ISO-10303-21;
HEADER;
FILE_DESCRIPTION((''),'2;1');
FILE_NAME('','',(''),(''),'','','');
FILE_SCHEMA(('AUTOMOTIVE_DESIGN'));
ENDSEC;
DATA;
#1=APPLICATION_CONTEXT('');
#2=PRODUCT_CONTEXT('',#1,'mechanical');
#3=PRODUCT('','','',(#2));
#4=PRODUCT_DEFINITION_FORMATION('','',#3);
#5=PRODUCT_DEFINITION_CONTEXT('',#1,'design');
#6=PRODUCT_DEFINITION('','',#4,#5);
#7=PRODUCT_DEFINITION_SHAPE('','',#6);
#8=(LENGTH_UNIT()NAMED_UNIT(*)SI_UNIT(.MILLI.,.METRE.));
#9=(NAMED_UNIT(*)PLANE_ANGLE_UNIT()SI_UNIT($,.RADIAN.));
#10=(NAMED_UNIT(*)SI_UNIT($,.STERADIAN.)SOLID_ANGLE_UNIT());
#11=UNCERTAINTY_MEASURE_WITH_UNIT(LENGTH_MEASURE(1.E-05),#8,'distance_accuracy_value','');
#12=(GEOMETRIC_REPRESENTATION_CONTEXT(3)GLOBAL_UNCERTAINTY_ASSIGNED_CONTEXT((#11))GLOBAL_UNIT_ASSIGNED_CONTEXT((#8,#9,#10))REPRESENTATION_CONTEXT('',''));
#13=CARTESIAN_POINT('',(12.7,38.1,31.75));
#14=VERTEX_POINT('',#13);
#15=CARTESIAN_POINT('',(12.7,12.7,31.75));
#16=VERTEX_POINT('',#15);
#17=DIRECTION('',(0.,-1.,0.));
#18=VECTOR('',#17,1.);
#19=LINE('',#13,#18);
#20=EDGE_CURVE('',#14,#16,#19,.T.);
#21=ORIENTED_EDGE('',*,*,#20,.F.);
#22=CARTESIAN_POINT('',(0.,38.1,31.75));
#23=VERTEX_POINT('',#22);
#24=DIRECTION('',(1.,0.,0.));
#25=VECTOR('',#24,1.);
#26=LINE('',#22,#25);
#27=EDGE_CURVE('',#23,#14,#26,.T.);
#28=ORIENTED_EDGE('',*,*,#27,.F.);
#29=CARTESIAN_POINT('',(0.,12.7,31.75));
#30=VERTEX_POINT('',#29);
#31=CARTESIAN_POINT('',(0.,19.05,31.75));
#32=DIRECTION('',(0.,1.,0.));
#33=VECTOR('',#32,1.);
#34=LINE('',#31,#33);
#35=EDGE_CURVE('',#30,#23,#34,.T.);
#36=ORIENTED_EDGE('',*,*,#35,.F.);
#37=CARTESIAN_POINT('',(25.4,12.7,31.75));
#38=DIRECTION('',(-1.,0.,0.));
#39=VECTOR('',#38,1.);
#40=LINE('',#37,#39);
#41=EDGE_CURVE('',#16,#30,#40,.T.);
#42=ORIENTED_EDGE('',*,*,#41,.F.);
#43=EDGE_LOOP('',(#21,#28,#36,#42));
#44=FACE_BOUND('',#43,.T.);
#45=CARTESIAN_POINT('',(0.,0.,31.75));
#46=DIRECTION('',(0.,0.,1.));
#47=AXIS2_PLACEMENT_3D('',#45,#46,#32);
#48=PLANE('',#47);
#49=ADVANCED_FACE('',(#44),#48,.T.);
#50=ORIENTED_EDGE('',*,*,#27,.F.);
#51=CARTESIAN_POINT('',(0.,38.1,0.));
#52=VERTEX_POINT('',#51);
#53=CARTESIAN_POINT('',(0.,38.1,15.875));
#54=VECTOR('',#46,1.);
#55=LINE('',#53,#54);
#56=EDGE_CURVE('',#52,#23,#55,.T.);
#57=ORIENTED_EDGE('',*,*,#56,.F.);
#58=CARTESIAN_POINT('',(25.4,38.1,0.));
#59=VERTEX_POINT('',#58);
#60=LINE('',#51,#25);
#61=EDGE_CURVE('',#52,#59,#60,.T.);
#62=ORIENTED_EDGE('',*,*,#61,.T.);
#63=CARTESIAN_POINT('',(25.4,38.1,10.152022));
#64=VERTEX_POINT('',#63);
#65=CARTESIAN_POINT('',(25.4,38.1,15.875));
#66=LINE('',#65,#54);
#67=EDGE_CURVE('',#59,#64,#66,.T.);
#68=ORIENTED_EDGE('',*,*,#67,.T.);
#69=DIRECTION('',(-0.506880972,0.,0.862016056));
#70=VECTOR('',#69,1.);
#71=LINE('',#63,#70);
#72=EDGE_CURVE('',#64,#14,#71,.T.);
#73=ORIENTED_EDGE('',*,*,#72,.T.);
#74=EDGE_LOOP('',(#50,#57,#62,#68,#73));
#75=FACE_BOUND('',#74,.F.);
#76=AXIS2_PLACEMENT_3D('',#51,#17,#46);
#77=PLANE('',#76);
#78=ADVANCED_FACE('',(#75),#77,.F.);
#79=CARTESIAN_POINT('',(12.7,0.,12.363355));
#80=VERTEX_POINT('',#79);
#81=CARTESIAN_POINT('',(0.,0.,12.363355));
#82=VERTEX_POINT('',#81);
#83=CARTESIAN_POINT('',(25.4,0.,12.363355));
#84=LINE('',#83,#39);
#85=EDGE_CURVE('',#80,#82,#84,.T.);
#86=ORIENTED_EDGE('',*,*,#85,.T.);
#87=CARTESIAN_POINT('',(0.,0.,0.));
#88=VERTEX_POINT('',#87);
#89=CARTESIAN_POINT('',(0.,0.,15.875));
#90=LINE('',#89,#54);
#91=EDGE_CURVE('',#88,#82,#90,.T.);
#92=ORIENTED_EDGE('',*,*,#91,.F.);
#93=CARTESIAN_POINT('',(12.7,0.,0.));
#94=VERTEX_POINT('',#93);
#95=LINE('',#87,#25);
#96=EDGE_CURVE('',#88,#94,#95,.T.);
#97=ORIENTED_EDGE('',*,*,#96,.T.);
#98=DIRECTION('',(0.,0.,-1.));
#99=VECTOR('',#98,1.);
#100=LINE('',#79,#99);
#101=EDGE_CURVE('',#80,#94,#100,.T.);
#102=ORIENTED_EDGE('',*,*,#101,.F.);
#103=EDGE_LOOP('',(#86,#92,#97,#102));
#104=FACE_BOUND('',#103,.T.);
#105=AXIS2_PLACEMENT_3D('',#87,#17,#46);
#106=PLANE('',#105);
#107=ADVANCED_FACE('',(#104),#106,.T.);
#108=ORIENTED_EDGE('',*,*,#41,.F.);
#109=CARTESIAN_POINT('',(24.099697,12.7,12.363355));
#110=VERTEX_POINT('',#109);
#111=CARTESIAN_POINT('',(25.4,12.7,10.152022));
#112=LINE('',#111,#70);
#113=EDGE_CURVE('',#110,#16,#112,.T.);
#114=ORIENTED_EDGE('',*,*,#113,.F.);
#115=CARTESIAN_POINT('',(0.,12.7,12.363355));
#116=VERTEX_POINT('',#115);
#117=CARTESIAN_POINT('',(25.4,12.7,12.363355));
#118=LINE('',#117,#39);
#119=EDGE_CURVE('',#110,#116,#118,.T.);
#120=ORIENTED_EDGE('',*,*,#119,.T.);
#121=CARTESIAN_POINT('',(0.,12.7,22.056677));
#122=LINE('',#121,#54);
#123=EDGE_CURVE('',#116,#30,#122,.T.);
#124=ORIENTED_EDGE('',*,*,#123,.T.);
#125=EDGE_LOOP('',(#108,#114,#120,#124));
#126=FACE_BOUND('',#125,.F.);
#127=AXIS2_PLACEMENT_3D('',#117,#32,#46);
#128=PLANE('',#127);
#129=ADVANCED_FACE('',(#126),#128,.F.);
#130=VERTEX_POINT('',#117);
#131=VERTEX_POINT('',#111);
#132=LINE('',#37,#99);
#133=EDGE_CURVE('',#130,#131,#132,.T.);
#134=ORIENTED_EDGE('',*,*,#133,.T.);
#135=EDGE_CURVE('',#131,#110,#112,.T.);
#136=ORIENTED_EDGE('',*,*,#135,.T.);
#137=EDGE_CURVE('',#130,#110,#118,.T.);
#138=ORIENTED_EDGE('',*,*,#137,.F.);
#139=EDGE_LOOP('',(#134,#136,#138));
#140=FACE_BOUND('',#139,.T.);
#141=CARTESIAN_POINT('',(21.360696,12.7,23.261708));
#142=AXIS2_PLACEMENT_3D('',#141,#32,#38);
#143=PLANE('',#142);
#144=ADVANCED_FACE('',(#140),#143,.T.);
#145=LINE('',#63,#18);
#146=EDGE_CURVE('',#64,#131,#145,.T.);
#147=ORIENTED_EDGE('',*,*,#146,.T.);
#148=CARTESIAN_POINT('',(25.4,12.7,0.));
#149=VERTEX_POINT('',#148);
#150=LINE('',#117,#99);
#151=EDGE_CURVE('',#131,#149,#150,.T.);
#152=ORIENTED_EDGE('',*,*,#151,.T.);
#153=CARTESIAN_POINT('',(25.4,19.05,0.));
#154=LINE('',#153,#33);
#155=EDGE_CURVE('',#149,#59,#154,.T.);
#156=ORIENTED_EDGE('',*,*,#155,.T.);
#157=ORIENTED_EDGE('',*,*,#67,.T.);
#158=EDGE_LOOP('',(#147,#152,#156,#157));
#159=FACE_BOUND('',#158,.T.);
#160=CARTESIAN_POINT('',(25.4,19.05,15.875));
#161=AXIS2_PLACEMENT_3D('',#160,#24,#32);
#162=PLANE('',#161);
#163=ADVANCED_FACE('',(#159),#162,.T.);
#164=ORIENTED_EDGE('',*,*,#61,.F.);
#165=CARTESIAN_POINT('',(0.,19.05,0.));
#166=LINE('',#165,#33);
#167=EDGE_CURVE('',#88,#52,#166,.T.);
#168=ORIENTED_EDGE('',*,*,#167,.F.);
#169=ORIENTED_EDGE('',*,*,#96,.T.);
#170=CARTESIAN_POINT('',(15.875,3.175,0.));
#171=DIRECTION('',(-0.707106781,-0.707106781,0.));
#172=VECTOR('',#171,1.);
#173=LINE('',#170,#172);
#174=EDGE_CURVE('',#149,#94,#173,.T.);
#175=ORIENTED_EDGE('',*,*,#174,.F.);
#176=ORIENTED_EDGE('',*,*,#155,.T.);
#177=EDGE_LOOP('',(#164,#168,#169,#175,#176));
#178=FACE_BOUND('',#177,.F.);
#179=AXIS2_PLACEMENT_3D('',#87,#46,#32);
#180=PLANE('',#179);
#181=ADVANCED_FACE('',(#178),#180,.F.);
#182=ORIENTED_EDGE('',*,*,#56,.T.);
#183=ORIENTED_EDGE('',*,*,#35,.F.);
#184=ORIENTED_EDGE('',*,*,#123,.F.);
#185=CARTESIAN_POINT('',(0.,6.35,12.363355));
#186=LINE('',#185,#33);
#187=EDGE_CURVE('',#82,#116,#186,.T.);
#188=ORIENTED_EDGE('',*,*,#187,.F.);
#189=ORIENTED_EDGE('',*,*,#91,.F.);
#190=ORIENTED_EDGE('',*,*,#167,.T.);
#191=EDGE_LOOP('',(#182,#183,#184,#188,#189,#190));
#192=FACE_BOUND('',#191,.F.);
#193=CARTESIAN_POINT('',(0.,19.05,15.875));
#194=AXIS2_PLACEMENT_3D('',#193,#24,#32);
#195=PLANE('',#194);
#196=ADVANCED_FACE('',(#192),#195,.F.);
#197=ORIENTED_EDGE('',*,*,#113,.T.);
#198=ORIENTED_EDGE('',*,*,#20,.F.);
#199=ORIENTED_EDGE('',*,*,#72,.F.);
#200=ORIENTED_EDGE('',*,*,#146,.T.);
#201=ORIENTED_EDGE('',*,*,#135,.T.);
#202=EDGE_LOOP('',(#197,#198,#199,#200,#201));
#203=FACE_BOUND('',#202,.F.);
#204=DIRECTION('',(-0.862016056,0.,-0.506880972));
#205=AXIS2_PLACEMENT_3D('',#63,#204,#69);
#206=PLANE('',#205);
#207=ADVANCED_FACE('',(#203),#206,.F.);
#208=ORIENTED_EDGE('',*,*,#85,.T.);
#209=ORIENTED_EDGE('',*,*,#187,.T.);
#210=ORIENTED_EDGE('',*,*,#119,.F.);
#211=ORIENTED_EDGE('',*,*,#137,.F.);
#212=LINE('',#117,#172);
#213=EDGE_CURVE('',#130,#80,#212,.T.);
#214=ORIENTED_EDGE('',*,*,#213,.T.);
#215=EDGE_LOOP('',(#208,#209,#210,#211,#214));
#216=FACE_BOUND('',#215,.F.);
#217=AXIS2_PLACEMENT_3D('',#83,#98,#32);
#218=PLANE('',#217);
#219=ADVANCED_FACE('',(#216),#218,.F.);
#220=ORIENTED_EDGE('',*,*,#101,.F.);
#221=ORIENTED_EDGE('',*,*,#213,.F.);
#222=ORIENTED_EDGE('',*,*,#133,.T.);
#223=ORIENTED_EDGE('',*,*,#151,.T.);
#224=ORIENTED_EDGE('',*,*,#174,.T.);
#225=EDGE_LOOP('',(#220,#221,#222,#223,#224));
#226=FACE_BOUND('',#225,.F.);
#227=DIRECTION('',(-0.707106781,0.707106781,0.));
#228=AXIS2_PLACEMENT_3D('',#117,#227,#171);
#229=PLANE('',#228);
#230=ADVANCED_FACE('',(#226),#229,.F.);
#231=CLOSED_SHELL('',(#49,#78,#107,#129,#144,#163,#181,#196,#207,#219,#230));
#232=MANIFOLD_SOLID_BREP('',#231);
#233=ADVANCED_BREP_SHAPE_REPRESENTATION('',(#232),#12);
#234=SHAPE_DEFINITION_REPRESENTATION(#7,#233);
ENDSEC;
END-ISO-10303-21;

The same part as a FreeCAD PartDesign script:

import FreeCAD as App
import Part
import Sketcher
Q = App.Units.Quantity

doc = App.newDocument("Part")
body = doc.addObject("PartDesign::Body", "Body")

# Sketch on YZ plane
sketch1 = body.newObject("Sketcher::SketchObject", "Sketch")
sketch1.AttachmentSupport = (doc.getObject("YZ_Plane"), [""])
sketch1.MapMode = "FlatFace"
sketch1.addGeometry([
    Part.LineSegment(App.Vector(0, 31.75, 0), App.Vector(0, 0, 0)),
    Part.LineSegment(App.Vector(0, 0, 0), App.Vector(38.1, 0, 0)),
    Part.LineSegment(App.Vector(38.1, 0, 0), App.Vector(38.1, 31.75, 0)),
    Part.LineSegment(App.Vector(38.1, 31.75, 0), App.Vector(0, 31.75, 0)),
], False)
sketch1.addConstraint([
    Sketcher.Constraint("Coincident", 0, 2, 1, 1),
    Sketcher.Constraint("Coincident", 1, 2, 2, 1),
    Sketcher.Constraint("Coincident", 2, 2, 3, 1),
    Sketcher.Constraint("Coincident", 3, 2, 0, 1),
    Sketcher.Constraint("Vertical", 0),
    Sketcher.Constraint("Horizontal", 1),
    Sketcher.Constraint("Vertical", 2),
    Sketcher.Constraint("Horizontal", 3),
    Sketcher.Constraint("Coincident", 0, 2, -1, 1),
    Sketcher.Constraint("DistanceX", 1, 1, 1, 2, Q("1.5 in")),
    Sketcher.Constraint("DistanceY", 0, 2, 0, 1, Q("1.25 in")),
])
pad1 = body.newObject("PartDesign::Pad", "Pad")
pad1.Profile = sketch1
pad1.Length = Q("1 in")

# Sketch on YZ plane
sketch2 = body.newObject("Sketcher::SketchObject", "Sketch001")
sketch2.AttachmentSupport = (doc.getObject("YZ_Plane"), [""])
sketch2.MapMode = "FlatFace"
sketch2.AttachmentOffset = App.Placement(App.Vector(0, 0, 1 * 25.4), App.Rotation())
sketch2.addGeometry([
    Part.LineSegment(App.Vector(0, 31.75, 0), App.Vector(0, 12.363355, 0)),
    Part.LineSegment(App.Vector(0, 12.363355, 0), App.Vector(12.7, 12.363355, 0)),
    Part.LineSegment(App.Vector(12.7, 12.363355, 0), App.Vector(12.7, 31.75, 0)),
    Part.LineSegment(App.Vector(12.7, 31.75, 0), App.Vector(0, 31.75, 0)),
], False)
sketch2.addConstraint([
    Sketcher.Constraint("Coincident", 0, 2, 1, 1),
    Sketcher.Constraint("Coincident", 1, 2, 2, 1),
    Sketcher.Constraint("Coincident", 2, 2, 3, 1),
    Sketcher.Constraint("Coincident", 3, 2, 0, 1),
    Sketcher.Constraint("Vertical", 0),
    Sketcher.Constraint("Horizontal", 1),
    Sketcher.Constraint("Vertical", 2),
    Sketcher.Constraint("Horizontal", 3),
    Sketcher.Constraint("PointOnObject", 0, 2, -2),
    Sketcher.Constraint("DistanceX", 1, 1, 1, 2, Q("0.5 in")),
    Sketcher.Constraint("DistanceY", -1, 1, 2, 2, Q("1.25 in")),
    Sketcher.Constraint("DistanceY", 0, 2, 0, 1, 19.386645),
])
pocket1 = body.newObject("PartDesign::Pocket", "Pocket")
pocket1.Profile = sketch2
pocket1.Length = Q("1 in")

# Sketch on XZ plane
sketch3 = body.newObject("Sketcher::SketchObject", "Sketch002")
sketch3.AttachmentSupport = (doc.getObject("XZ_Plane"), [""])
sketch3.MapMode = "FlatFace"
sketch3.AttachmentOffset = App.Placement(App.Vector(0, 0, -1.5 * 25.4), App.Rotation())
sketch3.addGeometry([
    Part.LineSegment(App.Vector(25.4, 10.152022, 0), App.Vector(12.7, 31.75, 0)),
    Part.LineSegment(App.Vector(12.7, 31.75, 0), App.Vector(25.4, 31.75, 0)),
    Part.LineSegment(App.Vector(25.4, 31.75, 0), App.Vector(25.4, 10.152022, 0)),
], False)
sketch3.addConstraint([
    Sketcher.Constraint("Coincident", 0, 2, 1, 1),
    Sketcher.Constraint("Coincident", 1, 2, 2, 1),
    Sketcher.Constraint("Coincident", 2, 2, 0, 1),
    Sketcher.Constraint("Horizontal", 1),
    Sketcher.Constraint("Vertical", 2),
    Sketcher.Constraint("DistanceX", 1, 1, 1, 2, Q("0.5 in")),
    Sketcher.Constraint("DistanceX", -1, 1, 1, 2, Q("1 in")),
    Sketcher.Constraint("DistanceY", -1, 1, 0, 2, Q("1.25 in")),
    Sketcher.Constraint("Distance", 0, 25.055192),
])
pocket2 = body.newObject("PartDesign::Pocket", "Pocket001")
pocket2.Profile = sketch3
pocket2.Length = Q("1 in")
pocket2.Reversed = True

# Sketch on XY plane
sketch4 = body.newObject("Sketcher::SketchObject", "Sketch003")
sketch4.AttachmentSupport = (doc.getObject("XY_Plane"), [""])
sketch4.MapMode = "FlatFace"
sketch4.AttachmentOffset = App.Placement(App.Vector(0, 0, 12.363355), App.Rotation())
sketch4.addGeometry([
    Part.LineSegment(App.Vector(25.4, 0, 0), App.Vector(25.4, 12.7, 0)),
    Part.LineSegment(App.Vector(25.4, 12.7, 0), App.Vector(12.7, 0, 0)),
    Part.LineSegment(App.Vector(12.7, 0, 0), App.Vector(25.4, 0, 0)),
], False)
sketch4.addConstraint([
    Sketcher.Constraint("Coincident", 0, 2, 1, 1),
    Sketcher.Constraint("Coincident", 1, 2, 2, 1),
    Sketcher.Constraint("Coincident", 2, 2, 0, 1),
    Sketcher.Constraint("Vertical", 0),
    Sketcher.Constraint("Horizontal", 2),
    Sketcher.Constraint("PointOnObject", 1, 2, -1),
    Sketcher.Constraint("Equal", 2, 0),
    Sketcher.Constraint("DistanceX", 2, 1, 2, 2, Q("0.5 in")),
    Sketcher.Constraint("DistanceX", -1, 1, 0, 2, Q("1 in")),
])
pocket3 = body.newObject("PartDesign::Pocket", "Pocket002")
pocket3.Profile = sketch4
pocket3.Length = Q("1 in")

doc.recompute()
